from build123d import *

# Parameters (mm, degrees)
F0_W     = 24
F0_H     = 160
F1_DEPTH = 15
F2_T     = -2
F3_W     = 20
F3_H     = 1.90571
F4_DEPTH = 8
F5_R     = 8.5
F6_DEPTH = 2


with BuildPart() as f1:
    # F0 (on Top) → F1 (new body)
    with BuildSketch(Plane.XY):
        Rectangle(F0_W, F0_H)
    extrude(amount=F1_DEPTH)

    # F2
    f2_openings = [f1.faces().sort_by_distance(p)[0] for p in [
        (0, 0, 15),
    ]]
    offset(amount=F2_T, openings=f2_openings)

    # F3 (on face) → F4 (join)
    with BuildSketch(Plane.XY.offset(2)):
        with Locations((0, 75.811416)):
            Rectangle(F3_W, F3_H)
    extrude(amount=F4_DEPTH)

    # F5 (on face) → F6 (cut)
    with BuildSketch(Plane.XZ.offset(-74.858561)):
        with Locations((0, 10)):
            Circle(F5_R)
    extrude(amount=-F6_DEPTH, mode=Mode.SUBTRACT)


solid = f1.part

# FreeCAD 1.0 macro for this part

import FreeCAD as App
import Part
import Sketcher
from FreeCAD import Vector


def faces_at(feature, points):
    """Names of the faces that lie closest to the given points."""
    faces = feature.Shape.Faces
    near = lambda p: min(range(len(faces)), key=lambda i: faces[i].distToShape(Part.Vertex(*p))[0])
    return sorted({f"Face{near(p) + 1}" for p in points})

doc = App.newDocument("Part")
params = doc.addObject("Spreadsheet::Sheet", "Params")
for row, (alias, value) in enumerate([
    ("sketch1_width", "24 mm"),
    ("sketch1_height", "160 mm"),
    ("pad1_length", "15 mm"),
    ("thickness_wall", "2 mm"),
    ("sketch2_width", "20 mm"),
    ("pad2_length", "8 mm"),
    ("sketch3_diameter", "17 mm"),
    ("pocket1_length", "2 mm"),
], start=1):
    params.set(f"A{row}", alias)
    params.set(f"B{row}", "=" + value)
    params.setAlias(f"B{row}", alias)

body = doc.addObject("PartDesign::Body", "Body")

# Sketch on XY plane
sketch1 = doc.addObject("Sketcher::SketchObject", "Sketch")
body.addObject(sketch1)
sketch1.AttachmentSupport = (doc.XY_Plane, [""])
sketch1.MapMode = "FlatFace"
sketch1.addGeometry([
    Part.LineSegment(Vector(-12, 80, 0), Vector(-12, -80, 0)),
    Part.LineSegment(Vector(-12, -80, 0), Vector(12, -80, 0)),
    Part.LineSegment(Vector(12, -80, 0), Vector(12, 80, 0)),
    Part.LineSegment(Vector(12, 80, 0), Vector(-12, 80, 0)),
], False)
sketch1.addConstraint([
    Sketcher.Constraint("Coincident", 0, 2, 1, 1),
    Sketcher.Constraint("Coincident", 1, 2, 2, 1),
    Sketcher.Constraint("Coincident", 2, 2, 3, 1),
    Sketcher.Constraint("Coincident", 3, 2, 0, 1),
    Sketcher.Constraint("Vertical", 0),
    Sketcher.Constraint("Horizontal", 1),
    Sketcher.Constraint("Vertical", 2),
    Sketcher.Constraint("Horizontal", 3),
    Sketcher.Constraint("Symmetric", 0, 2, 2, 2, -1, 1),
    Sketcher.Constraint("DistanceX", 1, 1, 1, 2, 24.0),
    Sketcher.Constraint("DistanceY", 0, 2, 0, 1, 160.0),
])
sketch1.setExpression("Constraints[9]", "Params.sketch1_width")
sketch1.setExpression("Constraints[10]", "Params.sketch1_height")
pad1 = doc.addObject("PartDesign::Pad", "Pad")
body.addObject(pad1)
pad1.Profile = sketch1
pad1.setExpression("Length", "Params.pad1_length")
doc.recompute()

thickness = doc.addObject("PartDesign::Thickness", "Thickness")
body.addObject(thickness)
thickness.Base = (pad1, faces_at(pad1, [(0, 0, 15)]))
thickness.setExpression("Value", "Params.thickness_wall")
thickness.Reversed = True
thickness.Join = "Arc"

# Sketch on XY plane
sketch2 = doc.addObject("Sketcher::SketchObject", "Sketch001")
body.addObject(sketch2)
sketch2.AttachmentSupport = (doc.XY_Plane, [""])
sketch2.MapMode = "FlatFace"
sketch2.AttachmentOffset = App.Placement(Vector(0, 0, 2), App.Rotation())
sketch2.addGeometry([
    Part.LineSegment(Vector(-10, 76.764271, 0), Vector(-10, 74.858561, 0)),
    Part.LineSegment(Vector(-10, 74.858561, 0), Vector(10, 74.858561, 0)),
    Part.LineSegment(Vector(10, 74.858561, 0), Vector(10, 76.764271, 0)),
    Part.LineSegment(Vector(10, 76.764271, 0), Vector(-10, 76.764271, 0)),
], False)
sketch2.addConstraint([
    Sketcher.Constraint("Coincident", 0, 2, 1, 1),
    Sketcher.Constraint("Coincident", 1, 2, 2, 1),
    Sketcher.Constraint("Coincident", 2, 2, 3, 1),
    Sketcher.Constraint("Coincident", 3, 2, 0, 1),
    Sketcher.Constraint("Vertical", 0),
    Sketcher.Constraint("Horizontal", 1),
    Sketcher.Constraint("Vertical", 2),
    Sketcher.Constraint("Horizontal", 3),
    Sketcher.Constraint("DistanceX", 1, 1, 1, 2, 20.0),
    Sketcher.Constraint("DistanceX", 0, 2, -1, 1, 10.0),
    Sketcher.Constraint("DistanceY", 0, 2, 0, 1, 1.90571),
    Sketcher.Constraint("DistanceY", -1, 1, 0, 2, 74.858561),
])
sketch2.setExpression("Constraints[8]", "Params.sketch2_width")
pad2 = doc.addObject("PartDesign::Pad", "Pad001")
body.addObject(pad2)
pad2.Profile = sketch2
pad2.setExpression("Length", "Params.pad2_length")

# Sketch on XZ plane
sketch3 = doc.addObject("Sketcher::SketchObject", "Sketch002")
body.addObject(sketch3)
sketch3.AttachmentSupport = (doc.XZ_Plane, [""])
sketch3.MapMode = "FlatFace"
sketch3.AttachmentOffset = App.Placement(Vector(0, 0, -74.858561), App.Rotation())
sketch3.addGeometry(Part.Circle(Vector(0, 10, 0), Vector(0, 0, 1), 8.5), False)
sketch3.addConstraint([
    Sketcher.Constraint("PointOnObject", 0, 3, -2),
    Sketcher.Constraint("Diameter", 0, 17.0),
    Sketcher.Constraint("DistanceY", -1, 1, 0, 3, 10.0),
])
sketch3.setExpression("Constraints[1]", "Params.sketch3_diameter")
pocket1 = doc.addObject("PartDesign::Pocket", "Pocket")
body.addObject(pocket1)
pocket1.Profile = sketch3
pocket1.setExpression("Length", "Params.pocket1_length")

doc.recompute()
